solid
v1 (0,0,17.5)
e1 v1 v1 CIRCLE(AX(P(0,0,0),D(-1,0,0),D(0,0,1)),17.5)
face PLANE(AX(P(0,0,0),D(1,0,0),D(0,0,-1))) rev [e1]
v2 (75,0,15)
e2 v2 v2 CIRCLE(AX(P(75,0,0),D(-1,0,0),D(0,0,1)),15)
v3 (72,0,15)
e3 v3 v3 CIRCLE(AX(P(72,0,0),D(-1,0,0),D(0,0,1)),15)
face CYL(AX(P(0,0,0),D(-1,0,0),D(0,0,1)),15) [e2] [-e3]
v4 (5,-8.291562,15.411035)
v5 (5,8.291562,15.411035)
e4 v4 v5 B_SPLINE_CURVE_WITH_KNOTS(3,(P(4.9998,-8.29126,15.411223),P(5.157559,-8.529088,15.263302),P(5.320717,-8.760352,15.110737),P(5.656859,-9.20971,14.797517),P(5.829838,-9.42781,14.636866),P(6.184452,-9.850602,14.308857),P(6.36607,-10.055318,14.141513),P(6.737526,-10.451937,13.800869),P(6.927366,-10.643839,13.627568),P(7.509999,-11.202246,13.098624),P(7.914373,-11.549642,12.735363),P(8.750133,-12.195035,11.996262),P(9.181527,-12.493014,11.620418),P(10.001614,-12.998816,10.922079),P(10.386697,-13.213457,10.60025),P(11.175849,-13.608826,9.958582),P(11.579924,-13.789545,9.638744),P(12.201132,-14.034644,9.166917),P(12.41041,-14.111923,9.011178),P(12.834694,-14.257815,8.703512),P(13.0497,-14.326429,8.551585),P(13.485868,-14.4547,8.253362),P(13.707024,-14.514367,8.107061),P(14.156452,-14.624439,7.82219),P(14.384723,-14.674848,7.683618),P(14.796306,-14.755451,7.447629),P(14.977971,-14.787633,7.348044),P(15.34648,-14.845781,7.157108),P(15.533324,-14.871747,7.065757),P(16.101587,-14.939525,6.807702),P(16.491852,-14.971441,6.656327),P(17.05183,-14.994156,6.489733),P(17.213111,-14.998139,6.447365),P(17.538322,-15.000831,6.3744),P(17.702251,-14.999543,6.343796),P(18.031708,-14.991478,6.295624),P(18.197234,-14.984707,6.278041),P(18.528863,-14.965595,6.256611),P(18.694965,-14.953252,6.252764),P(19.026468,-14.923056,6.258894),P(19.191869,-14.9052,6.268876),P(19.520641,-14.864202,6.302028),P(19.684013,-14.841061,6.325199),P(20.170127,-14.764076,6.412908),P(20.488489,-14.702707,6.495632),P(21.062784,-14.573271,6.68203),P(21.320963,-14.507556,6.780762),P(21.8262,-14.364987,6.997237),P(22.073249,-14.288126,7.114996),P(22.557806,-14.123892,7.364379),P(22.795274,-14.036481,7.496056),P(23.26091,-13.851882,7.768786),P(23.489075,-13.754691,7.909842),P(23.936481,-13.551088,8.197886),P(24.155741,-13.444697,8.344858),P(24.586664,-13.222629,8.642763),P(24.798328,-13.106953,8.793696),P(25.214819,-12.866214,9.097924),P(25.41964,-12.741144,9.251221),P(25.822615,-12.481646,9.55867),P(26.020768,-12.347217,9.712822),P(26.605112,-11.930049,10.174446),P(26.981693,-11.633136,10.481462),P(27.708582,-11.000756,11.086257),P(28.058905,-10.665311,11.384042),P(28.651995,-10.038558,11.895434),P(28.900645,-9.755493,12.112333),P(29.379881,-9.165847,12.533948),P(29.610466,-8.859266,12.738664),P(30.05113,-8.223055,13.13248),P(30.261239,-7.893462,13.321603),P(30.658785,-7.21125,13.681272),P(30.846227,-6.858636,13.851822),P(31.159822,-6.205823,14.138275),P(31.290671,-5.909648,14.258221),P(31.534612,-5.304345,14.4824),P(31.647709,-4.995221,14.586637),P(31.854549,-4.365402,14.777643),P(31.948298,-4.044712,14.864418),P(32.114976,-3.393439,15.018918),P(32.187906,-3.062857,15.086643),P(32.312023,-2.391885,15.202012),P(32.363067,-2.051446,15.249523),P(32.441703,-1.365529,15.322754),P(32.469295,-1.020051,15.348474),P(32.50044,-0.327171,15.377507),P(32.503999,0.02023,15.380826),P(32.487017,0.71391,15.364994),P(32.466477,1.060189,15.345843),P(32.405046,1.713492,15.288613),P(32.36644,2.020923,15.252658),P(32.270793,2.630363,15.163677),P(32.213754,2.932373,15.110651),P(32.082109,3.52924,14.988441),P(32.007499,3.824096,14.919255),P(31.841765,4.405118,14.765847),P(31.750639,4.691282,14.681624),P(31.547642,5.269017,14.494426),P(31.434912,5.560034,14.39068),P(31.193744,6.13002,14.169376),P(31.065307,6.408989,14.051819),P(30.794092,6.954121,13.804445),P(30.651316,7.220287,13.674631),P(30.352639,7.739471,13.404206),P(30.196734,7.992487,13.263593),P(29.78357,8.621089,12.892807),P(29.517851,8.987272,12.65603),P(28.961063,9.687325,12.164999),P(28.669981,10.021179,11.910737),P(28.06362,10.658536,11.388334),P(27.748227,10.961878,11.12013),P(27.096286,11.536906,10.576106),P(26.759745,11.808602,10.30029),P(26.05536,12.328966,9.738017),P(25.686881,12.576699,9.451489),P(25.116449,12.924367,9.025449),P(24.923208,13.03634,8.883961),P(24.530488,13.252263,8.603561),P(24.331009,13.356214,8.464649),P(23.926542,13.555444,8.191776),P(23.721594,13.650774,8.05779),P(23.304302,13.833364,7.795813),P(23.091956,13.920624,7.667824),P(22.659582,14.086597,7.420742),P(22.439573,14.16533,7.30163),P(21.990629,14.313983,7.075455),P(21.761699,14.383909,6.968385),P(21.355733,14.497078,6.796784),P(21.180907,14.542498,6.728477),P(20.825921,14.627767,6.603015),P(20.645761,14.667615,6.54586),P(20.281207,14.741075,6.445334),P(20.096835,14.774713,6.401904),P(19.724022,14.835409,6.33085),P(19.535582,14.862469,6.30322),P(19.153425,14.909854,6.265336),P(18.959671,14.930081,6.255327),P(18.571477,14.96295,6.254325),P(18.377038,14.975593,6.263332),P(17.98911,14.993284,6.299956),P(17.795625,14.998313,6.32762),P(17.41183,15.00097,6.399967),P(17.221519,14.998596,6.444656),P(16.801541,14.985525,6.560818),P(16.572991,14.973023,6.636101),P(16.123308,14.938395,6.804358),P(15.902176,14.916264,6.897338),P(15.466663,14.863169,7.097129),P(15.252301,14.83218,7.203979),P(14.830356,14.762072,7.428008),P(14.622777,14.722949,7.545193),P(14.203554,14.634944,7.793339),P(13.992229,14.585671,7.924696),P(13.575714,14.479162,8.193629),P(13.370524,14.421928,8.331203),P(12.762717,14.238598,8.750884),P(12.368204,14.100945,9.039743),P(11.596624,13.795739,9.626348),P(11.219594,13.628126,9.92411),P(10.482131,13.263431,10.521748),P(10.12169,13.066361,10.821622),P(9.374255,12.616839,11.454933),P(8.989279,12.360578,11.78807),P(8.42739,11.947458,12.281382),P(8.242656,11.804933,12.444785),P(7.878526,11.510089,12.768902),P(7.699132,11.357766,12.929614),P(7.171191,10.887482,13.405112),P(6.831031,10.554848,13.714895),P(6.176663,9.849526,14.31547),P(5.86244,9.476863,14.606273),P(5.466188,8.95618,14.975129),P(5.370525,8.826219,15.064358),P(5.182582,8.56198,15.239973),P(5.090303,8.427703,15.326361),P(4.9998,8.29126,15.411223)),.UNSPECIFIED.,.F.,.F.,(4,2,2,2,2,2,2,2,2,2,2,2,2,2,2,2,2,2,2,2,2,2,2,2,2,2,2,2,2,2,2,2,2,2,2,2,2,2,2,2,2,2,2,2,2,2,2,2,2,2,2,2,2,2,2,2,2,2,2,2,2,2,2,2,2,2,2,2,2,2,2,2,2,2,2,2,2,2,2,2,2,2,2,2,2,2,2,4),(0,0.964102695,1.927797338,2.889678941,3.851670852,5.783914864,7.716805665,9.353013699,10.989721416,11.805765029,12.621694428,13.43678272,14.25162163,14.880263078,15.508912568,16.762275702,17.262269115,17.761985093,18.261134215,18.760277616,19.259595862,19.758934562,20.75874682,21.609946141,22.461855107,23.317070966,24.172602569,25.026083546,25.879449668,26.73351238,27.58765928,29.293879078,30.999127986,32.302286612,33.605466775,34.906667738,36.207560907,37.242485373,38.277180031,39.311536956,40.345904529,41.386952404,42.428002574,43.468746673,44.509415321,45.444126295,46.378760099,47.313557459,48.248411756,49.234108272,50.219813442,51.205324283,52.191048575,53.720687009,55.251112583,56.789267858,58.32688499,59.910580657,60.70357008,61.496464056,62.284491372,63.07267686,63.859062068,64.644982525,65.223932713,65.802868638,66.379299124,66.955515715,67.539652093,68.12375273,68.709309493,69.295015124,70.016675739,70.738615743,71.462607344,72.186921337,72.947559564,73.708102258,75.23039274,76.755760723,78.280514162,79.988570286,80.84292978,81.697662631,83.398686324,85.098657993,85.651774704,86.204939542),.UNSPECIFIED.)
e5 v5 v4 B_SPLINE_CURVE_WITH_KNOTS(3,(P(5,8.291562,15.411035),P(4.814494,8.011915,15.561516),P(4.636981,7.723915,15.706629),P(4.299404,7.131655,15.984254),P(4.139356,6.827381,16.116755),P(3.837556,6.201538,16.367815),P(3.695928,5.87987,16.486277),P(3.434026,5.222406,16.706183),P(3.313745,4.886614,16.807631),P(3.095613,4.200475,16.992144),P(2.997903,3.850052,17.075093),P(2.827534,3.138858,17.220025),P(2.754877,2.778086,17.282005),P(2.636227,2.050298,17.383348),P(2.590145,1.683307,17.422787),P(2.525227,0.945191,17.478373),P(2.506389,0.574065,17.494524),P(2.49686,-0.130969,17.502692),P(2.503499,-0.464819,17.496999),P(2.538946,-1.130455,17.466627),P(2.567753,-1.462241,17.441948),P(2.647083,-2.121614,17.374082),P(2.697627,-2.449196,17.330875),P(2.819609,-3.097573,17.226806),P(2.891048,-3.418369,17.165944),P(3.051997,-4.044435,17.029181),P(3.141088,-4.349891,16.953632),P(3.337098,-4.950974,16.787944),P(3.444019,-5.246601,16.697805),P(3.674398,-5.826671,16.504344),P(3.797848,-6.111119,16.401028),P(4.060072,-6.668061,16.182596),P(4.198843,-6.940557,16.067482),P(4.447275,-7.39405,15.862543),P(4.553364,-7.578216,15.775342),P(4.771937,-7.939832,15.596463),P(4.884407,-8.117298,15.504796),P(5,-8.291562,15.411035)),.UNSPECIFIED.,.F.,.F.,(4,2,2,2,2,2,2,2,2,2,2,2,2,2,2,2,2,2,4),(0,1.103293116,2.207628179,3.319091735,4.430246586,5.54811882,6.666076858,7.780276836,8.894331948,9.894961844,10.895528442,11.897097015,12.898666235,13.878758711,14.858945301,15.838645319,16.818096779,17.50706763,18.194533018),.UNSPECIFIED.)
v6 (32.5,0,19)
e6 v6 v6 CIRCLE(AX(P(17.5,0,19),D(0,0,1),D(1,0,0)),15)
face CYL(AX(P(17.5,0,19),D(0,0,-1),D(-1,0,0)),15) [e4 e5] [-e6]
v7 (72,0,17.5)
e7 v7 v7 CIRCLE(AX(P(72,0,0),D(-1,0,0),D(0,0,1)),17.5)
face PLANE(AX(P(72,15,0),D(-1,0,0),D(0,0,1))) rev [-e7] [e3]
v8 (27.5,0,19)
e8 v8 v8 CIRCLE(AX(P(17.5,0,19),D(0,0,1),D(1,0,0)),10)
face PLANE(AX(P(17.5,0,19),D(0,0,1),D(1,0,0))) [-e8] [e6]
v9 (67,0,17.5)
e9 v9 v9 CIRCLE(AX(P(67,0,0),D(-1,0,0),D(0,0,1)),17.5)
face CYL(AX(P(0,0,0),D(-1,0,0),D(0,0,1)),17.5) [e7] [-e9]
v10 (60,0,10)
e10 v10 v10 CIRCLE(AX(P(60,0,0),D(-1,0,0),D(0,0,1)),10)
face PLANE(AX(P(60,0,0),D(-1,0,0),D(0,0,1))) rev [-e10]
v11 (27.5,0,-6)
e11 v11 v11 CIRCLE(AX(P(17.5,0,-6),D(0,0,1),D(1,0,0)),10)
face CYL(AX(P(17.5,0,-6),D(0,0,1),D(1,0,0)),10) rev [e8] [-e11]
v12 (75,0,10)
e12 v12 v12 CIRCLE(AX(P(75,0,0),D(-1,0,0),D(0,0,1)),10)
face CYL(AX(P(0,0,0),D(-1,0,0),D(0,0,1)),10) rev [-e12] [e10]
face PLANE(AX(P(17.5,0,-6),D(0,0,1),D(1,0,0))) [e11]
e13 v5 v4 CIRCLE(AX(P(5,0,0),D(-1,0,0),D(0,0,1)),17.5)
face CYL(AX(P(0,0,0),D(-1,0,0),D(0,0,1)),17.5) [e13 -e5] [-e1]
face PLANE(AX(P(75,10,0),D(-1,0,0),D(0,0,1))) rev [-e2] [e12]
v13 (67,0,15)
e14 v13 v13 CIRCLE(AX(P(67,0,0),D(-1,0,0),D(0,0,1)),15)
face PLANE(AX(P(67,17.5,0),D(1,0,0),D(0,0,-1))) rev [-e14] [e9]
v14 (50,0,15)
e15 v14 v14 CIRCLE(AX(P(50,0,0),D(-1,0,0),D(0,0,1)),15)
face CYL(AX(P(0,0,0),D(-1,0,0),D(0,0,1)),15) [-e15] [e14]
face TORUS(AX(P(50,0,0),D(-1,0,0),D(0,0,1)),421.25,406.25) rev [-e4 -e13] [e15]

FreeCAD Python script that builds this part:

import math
import FreeCAD as App
import Part
import Sketcher
Q = App.Units.Quantity

doc = App.newDocument("Part")
params = doc.addObject("Spreadsheet::Sheet", "Params")
for row, (alias, value) in enumerate([
    ("sketch1_width", "60 mm"),
    ("sketch1_width2", "15 mm"),
    ("sketch1_width3", "3 mm"),
    ("sketch1_width4", "5 mm"),
    ("sketch1_width5", "17 mm"),
    ("revolution_angle", "360 deg"),
    ("sketch2_diameter", "30 mm"),
    ("pad1_length", "19 mm"),
    ("sketch3_diameter", "20 mm"),
    ("pocket1_length", "25 mm"),
], start=1):
    params.set(f"A{row}", alias)
    params.set(f"B{row}", "=" + value)
    params.setAlias(f"B{row}", alias)

body = doc.addObject("PartDesign::Body", "Body")

sketch1 = body.newObject("Sketcher::SketchObject", "Sketch")
sketch1.AttachmentSupport = (doc.getObject("XY_Plane"), [""])
sketch1.MapMode = "FlatFace"
sketch1.addGeometry([
    Part.LineSegment(App.Vector(0, 17.5, 0), App.Vector(0, 0, 0)),
    Part.LineSegment(App.Vector(0, 0, 0), App.Vector(60, 0, 0)),
    Part.LineSegment(App.Vector(60, 0, 0), App.Vector(60, 10, 0)),
    Part.LineSegment(App.Vector(60, 10, 0), App.Vector(75, 10, 0)),
    Part.LineSegment(App.Vector(75, 10, 0), App.Vector(75, 15, 0)),
    Part.LineSegment(App.Vector(75, 15, 0), App.Vector(72, 15, 0)),
    Part.LineSegment(App.Vector(72, 15, 0), App.Vector(72, 17.5, 0)),
    Part.LineSegment(App.Vector(72, 17.5, 0), App.Vector(67, 17.5, 0)),
    Part.LineSegment(App.Vector(67, 17.5, 0), App.Vector(67, 15, 0)),
    Part.LineSegment(App.Vector(67, 15, 0), App.Vector(50, 15, 0)),
    Part.ArcOfCircle(Part.Circle(App.Vector(50, 421.2, 0), App.Vector(0, 0, 1), 406.2), math.radians(-96.36), math.radians(-90)),
    Part.LineSegment(App.Vector(5, 17.5, 0), App.Vector(0, 17.5, 0)),
], False)
sketch1.addConstraint([
    Sketcher.Constraint("Coincident", 0, 2, 1, 1),
    Sketcher.Constraint("Coincident", 1, 2, 2, 1),
    Sketcher.Constraint("Coincident", 2, 2, 3, 1),
    Sketcher.Constraint("Coincident", 3, 2, 4, 1),
    Sketcher.Constraint("Coincident", 4, 2, 5, 1),
    Sketcher.Constraint("Coincident", 5, 2, 6, 1),
    Sketcher.Constraint("Coincident", 6, 2, 7, 1),
    Sketcher.Constraint("Coincident", 7, 2, 8, 1),
    Sketcher.Constraint("Coincident", 8, 2, 9, 1),
    Sketcher.Constraint("Tangent", 9, 2, 10, 2),
    Sketcher.Constraint("Coincident", 10, 1, 11, 1),
    Sketcher.Constraint("Coincident", 11, 2, 0, 1),
    Sketcher.Constraint("Vertical", 0),
    Sketcher.Constraint("Horizontal", 1),
    Sketcher.Constraint("Vertical", 2),
    Sketcher.Constraint("Horizontal", 3),
    Sketcher.Constraint("Vertical", 4),
    Sketcher.Constraint("Horizontal", 5),
    Sketcher.Constraint("Vertical", 6),
    Sketcher.Constraint("Horizontal", 7),
    Sketcher.Constraint("Vertical", 8),
    Sketcher.Constraint("Horizontal", 9),
    Sketcher.Constraint("Horizontal", 11),
    Sketcher.Constraint("Coincident", 0, 2, -1, 1),
    Sketcher.Constraint("Horizontal", 5, 2, 8, 2),
    Sketcher.Constraint("Horizontal", 7, 2, 10, 1),
    Sketcher.Constraint("Equal", 7, 11),
    Sketcher.Constraint("Equal", 11, 4),
    Sketcher.Constraint("DistanceX", 1, 1, 1, 2, Q("60 mm")),
    Sketcher.Constraint("DistanceX", 3, 1, 3, 2, Q("15 mm")),
    Sketcher.Constraint("DistanceX", 5, 2, 5, 1, Q("3 mm")),
    Sketcher.Constraint("DistanceX", 7, 2, 7, 1, Q("5 mm")),
    Sketcher.Constraint("DistanceX", 9, 2, 9, 1, Q("17 mm")),
    Sketcher.Constraint("DistanceY", 2, 1, 2, 2, Q("10 mm")),
    Sketcher.Constraint("Radius", 10, Q("406.25 mm")),
])
sketch1.setExpression("Constraints[28]", "Params.sketch1_width")
sketch1.setExpression("Constraints[29]", "Params.sketch1_width2")
sketch1.setExpression("Constraints[30]", "Params.sketch1_width3")
sketch1.setExpression("Constraints[31]", "Params.sketch1_width4")
sketch1.setExpression("Constraints[32]", "Params.sketch1_width5")
revolution = body.newObject("PartDesign::Revolution", "Revolution")
revolution.Profile = sketch1
revolution.ReferenceAxis = (sketch1, ["H_Axis"])
revolution.setExpression("Angle", "Params.revolution_angle")

sketch2 = body.newObject("Sketcher::SketchObject", "Sketch001")
sketch2.AttachmentSupport = (doc.getObject("XY_Plane"), [""])
sketch2.MapMode = "FlatFace"
sketch2.addGeometry(Part.Circle(App.Vector(18, 0, 0), App.Vector(0, 0, 1), 15), False)
sketch2.addConstraint([
    Sketcher.Constraint("PointOnObject", 0, 3, -1),
    Sketcher.Constraint("Diameter", 0, Q("30 mm")),
    Sketcher.Constraint("DistanceX", -1, 1, 0, 3, Q("17.5 mm")),
])
sketch2.setExpression("Constraints[1]", "Params.sketch2_diameter")
pad1 = body.newObject("PartDesign::Pad", "Pad")
pad1.Profile = sketch2
pad1.setExpression("Length", "Params.pad1_length")

sketch3 = body.newObject("Sketcher::SketchObject", "Sketch002")
sketch3.AttachmentSupport = (doc.getObject("XY_Plane"), [""])
sketch3.MapMode = "FlatFace"
sketch3.AttachmentOffset = App.Placement(App.Vector(0, 0, 19), App.Rotation())
sketch3.addGeometry(Part.Circle(App.Vector(18, 0, 0), App.Vector(0, 0, 1), 10), False)
sketch3.addConstraint([
    Sketcher.Constraint("PointOnObject", 0, 3, -1),
    Sketcher.Constraint("Diameter", 0, Q("20 mm")),
    Sketcher.Constraint("DistanceX", -1, 1, 0, 3, Q("17.5 mm")),
])
sketch3.setExpression("Constraints[1]", "Params.sketch3_diameter")
pocket1 = body.newObject("PartDesign::Pocket", "Pocket")
pocket1.Profile = sketch3
pocket1.setExpression("Length", "Params.pocket1_length")

doc.recompute()
